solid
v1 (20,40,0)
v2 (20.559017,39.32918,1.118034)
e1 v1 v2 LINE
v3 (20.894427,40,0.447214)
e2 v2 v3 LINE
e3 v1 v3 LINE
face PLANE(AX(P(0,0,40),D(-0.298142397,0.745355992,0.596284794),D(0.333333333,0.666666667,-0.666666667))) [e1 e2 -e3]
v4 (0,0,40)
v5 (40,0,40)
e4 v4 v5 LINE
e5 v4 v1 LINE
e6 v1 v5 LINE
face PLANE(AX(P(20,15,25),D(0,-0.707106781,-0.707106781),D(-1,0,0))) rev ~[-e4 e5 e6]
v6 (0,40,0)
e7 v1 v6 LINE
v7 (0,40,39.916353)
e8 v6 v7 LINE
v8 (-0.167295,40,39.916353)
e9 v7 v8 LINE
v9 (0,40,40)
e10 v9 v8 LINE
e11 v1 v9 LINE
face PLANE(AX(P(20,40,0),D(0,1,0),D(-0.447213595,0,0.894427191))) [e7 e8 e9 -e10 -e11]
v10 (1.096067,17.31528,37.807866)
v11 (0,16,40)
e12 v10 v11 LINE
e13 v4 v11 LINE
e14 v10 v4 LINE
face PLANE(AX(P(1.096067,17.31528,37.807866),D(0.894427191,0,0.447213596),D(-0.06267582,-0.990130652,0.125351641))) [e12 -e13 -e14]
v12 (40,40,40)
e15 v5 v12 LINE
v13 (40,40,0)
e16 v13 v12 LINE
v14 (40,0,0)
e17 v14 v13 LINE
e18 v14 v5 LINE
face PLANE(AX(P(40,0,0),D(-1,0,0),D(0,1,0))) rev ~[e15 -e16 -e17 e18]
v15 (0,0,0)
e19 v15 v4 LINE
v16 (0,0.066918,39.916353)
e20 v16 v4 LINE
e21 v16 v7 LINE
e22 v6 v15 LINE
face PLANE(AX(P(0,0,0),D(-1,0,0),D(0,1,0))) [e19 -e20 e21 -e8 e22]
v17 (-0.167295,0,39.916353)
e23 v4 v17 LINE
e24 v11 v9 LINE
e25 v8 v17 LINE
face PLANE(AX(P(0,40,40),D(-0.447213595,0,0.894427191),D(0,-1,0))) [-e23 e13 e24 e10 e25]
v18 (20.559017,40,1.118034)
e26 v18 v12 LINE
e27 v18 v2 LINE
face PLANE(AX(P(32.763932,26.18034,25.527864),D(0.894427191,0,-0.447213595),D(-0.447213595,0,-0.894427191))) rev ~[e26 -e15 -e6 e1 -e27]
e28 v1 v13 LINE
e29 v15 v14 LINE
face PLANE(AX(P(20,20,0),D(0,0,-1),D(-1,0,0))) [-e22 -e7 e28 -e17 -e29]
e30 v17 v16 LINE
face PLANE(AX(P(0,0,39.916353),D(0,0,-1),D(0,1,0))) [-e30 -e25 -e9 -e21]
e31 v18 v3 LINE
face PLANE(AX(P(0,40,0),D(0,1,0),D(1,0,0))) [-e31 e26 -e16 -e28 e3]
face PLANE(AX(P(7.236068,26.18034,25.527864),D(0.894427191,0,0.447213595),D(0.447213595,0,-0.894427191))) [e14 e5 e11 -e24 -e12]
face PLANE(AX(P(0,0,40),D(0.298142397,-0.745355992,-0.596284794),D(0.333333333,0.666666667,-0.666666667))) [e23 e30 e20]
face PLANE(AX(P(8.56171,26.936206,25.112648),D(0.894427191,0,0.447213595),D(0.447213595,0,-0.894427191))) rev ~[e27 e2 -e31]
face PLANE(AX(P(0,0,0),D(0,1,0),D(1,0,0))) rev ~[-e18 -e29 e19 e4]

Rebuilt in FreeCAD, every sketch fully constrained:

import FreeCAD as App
import Part
import Sketcher
Q = App.Units.Quantity


def add_polygon(sketch, points):
    """Adds a closed chain of lines whose ends are joined by coincident constraints."""
    first, n = sketch.GeometryCount, len(points)
    for a, b in zip(points, points[1:] + points[:1]):
        sketch.addGeometry(Part.LineSegment(App.Vector(*a, 0), App.Vector(*b, 0)), False)
    for i in range(n):
        sketch.addConstraint(Sketcher.Constraint("Coincident", first + i, 2, first + (i + 1) % n, 1))

doc = App.newDocument("Part")
body = doc.addObject("PartDesign::Body", "Body")
body.AllowCompound = True

sketch1 = body.newObject("Sketcher::SketchObject", "Sketch")
sketch1.AttachmentSupport = (doc.getObject("XY_Plane"), [""])
sketch1.MapMode = "FlatFace"
add_polygon(sketch1, [(0, 40), (0, 0), (40, 0), (40, 40)])
sketch1.addConstraint([
    Sketcher.Constraint("Vertical", 0),
    Sketcher.Constraint("Horizontal", 1),
    Sketcher.Constraint("Vertical", 2),
    Sketcher.Constraint("Horizontal", 3),
    Sketcher.Constraint("Coincident", 0, 2, -1, 1),
    Sketcher.Constraint("Equal", 3, 0),
    Sketcher.Constraint("DistanceX", 1, 1, 1, 2, Q("40 mm")),
])
pad1 = body.newObject("PartDesign::Pad", "Pad")
pad1.Profile = sketch1
pad1.Length = 40

sketch2 = body.newObject("Sketcher::SketchObject", "Sketch001")
sketch2.Placement = App.Placement(App.Vector(0, 20, 20), App.Rotation(App.Vector(1, 0, 0), App.Vector(0, 0.707106781, -0.707106781), App.Vector(0, 0.707106781, 0.707106781), "ZXY"))
add_polygon(sketch2, [(0, -28), (40, -28), (20, 28)])
sketch2.addConstraint([
    Sketcher.Constraint("Horizontal", 0),
    Sketcher.Constraint("PointOnObject", 2, 2, -2),
    Sketcher.Constraint("Equal", 1, 2),
    Sketcher.Constraint("DistanceX", 0, 1, 0, 2, Q("40 mm")),
    Sketcher.Constraint("Distance", 1, Q("60 mm")),
    Sketcher.Constraint("DistanceY", 0, 2, -1, 1, Q("28.284271 mm")),
])
pocket1 = body.newObject("PartDesign::Pocket", "Pocket")
pocket1.Profile = sketch2
pocket1.Length = 40
pocket1.Reversed = True

sketch3 = body.newObject("Sketcher::SketchObject", "Sketch002")
sketch3.Placement = App.Placement(App.Vector(16, 0, -8), App.Rotation(App.Vector(0.447213595, 0, 0.894427191), App.Vector(0, 1, 0), App.Vector(-0.894427191, 0, 0.447213595), "ZXY"))
add_polygon(sketch3, [(54, 40), (9, 40), (54, 0)])
sketch3.addConstraint([
    Sketcher.Constraint("Horizontal", 0),
    Sketcher.Constraint("Vertical", 2),
    Sketcher.Constraint("PointOnObject", 1, 2, -1),
    Sketcher.Constraint("DistanceY", 2, 1, 2, 2, Q("40 mm")),
    Sketcher.Constraint("Distance", 1, Q("60 mm")),
    Sketcher.Constraint("DistanceX", -1, 1, 0, 2, Q("8.944272 mm")),
])
pocket2 = body.newObject("PartDesign::Pocket", "Pocket001")
pocket2.Profile = sketch3
pocket2.Length = 40
pocket2.Reversed = True

sketch4 = body.newObject("Sketcher::SketchObject", "Sketch003")
sketch4.Placement = App.Placement(App.Vector(16, 0, 8), App.Rotation(App.Vector(-0.447213595, 0, 0.894427191), App.Vector(0, 1, 0), App.Vector(-0.894427191, 0, -0.447213595), "ZXY"))
add_polygon(sketch4, [(-9, 40), (36, 0), (29, 45)])
sketch4.addConstraint([
    Sketcher.Constraint("PointOnObject", 0, 2, -1),
    Sketcher.Constraint("Perpendicular", 1, 2),
    Sketcher.Constraint("Distance", 0, Q("60 mm")),
    Sketcher.Constraint("DistanceY", -1, 1, 2, 2, Q("40 mm")),
    Sketcher.Constraint("Distance", 1, Q("45.872808 mm")),
    Sketcher.Constraint("DistanceX", 2, 2, -1, 1, Q("8.944272 mm")),
])
pocket3 = body.newObject("PartDesign::Pocket", "Pocket002")
pocket3.Profile = sketch4
pocket3.Length = 1

sketch5 = body.newObject("Sketcher::SketchObject", "Sketch004")
sketch5.Placement = App.Placement(App.Vector(16, 0, 8), App.Rotation(App.Vector(-0.447213595, 0, 0.894427191), App.Vector(0, 1, 0), App.Vector(-0.894427191, 0, -0.447213595), "ZXY"))
add_polygon(sketch5, [(36, 0), (36, 40), (-9, 40)])
sketch5.addConstraint([
    Sketcher.Constraint("Vertical", 0),
    Sketcher.Constraint("Horizontal", 1),
    Sketcher.Constraint("PointOnObject", 2, 2, -1),
    Sketcher.Constraint("DistanceY", 0, 1, 0, 2, Q("40 mm")),
    Sketcher.Constraint("Distance", 2, Q("60 mm")),
    Sketcher.Constraint("DistanceX", 1, 2, -1, 1, Q("8.944272 mm")),
])
pad2 = body.newObject("PartDesign::Pad", "Pad001")
pad2.Profile = sketch5
pad2.Length = 26

sketch6 = body.newObject("Sketcher::SketchObject", "Sketch005")
sketch6.Placement = App.Placement(App.Vector(16, 0, 8), App.Rotation(App.Vector(0.447213595, 0, -0.894427191), App.Vector(0, 1, 0), App.Vector(0.894427191, 0, 0.447213595), "ZXY"))
add_polygon(sketch6, [(3, 34.7), (-35.8, 31.2), (-35.8, 16), (-33.3, 17.3), (-35.8, 0)])
sketch6.addConstraint([
    Sketcher.Constraint("Vertical", 1),
    Sketcher.Constraint("PointOnObject", 3, 2, -1),
    Sketcher.Constraint("Vertical", 1, 2, 3, 2),
    Sketcher.Constraint("DistanceY", -1, 1, 1, 2, Q("16 mm")),
    Sketcher.Constraint("DistanceX", 2, 2, 4, 2, Q("36.305101 mm")),
    Sketcher.Constraint("Distance", 0, Q("38.909949 mm")),
    Sketcher.Constraint("DistanceY", 1, 2, 1, 1, Q("15.206354 mm")),
    Sketcher.Constraint("DistanceY", -1, 1, 2, 2, Q("17.31528 mm")),
    Sketcher.Constraint("DistanceX", 1, 2, 2, 2, Q("2.45088 mm")),
    Sketcher.Constraint("DistanceX", 0, 2, -1, 1, Q("35.777088 mm")),
])
pocket4 = body.newObject("PartDesign::Pocket", "Pocket003")
pocket4.Profile = sketch6
pocket4.Length = 5
pocket4.Reversed = True

sketch7 = body.newObject("Sketcher::SketchObject", "Sketch006")
sketch7.Placement = App.Placement(App.Vector(-15.685739, 4.96458, 31.371479), App.Rotation(App.Vector(-0.896620465, -0.069212396, -0.437357275), App.Vector(0, 0.987708638, -0.156306264), App.Vector(0.442799889, -0.140147395, -0.885599778), "ZXY"))
add_polygon(sketch7, [(-18.7, 11.2), (-21.7, 8.5), (-17.5, -6.3)])
sketch7.addConstraint([
    Sketcher.Constraint("Distance", 0, Q("4.083799 mm")),
    Sketcher.Constraint("DistanceY", -1, 1, 0, 2, Q("8.458308 mm")),
    Sketcher.Constraint("DistanceX", 1, 2, -1, 1, Q("17.494291 mm")),
    Sketcher.Constraint("DistanceY", 1, 2, -1, 1, Q("6.252251 mm")),
    Sketcher.Constraint("Distance", 1, Q("15.313726 mm")),
    Sketcher.Constraint("Distance", 2, Q("17.487874 mm")),
])
pocket5 = body.newObject("PartDesign::Pocket", "Pocket004")
pocket5.Profile = sketch7
pocket5.Length = 5

sketch8 = body.newObject("Sketcher::SketchObject", "Sketch007")
sketch8.Placement = App.Placement(App.Vector(15.970902, -3.856674, 8.595775), App.Rotation(App.Vector(-0.450614766, 0.108815038, 0.88606186), App.Vector(0.234734211, 0.972059592, 0), App.Vector(-0.86130493, 0.207989032, -0.463567018), "ZXY"))
add_polygon(sketch8, [(35.4, 15), (34.9, 15.3), (35.4, 0)])
sketch8.addConstraint([
    Sketcher.Constraint("Vertical", 2),
    Sketcher.Constraint("PointOnObject", 1, 2, -1),
    Sketcher.Constraint("DistanceY", 2, 1, 2, 2, Q("15.010039 mm")),
    Sketcher.Constraint("DistanceX", 0, 2, 1, 2, Q("0.494501 mm")),
    Sketcher.Constraint("DistanceY", 2, 2, 0, 2, Q("0.295701 mm")),
    Sketcher.Constraint("DistanceX", -1, 1, 0, 2, Q("34.947974 mm")),
])
pocket6 = body.newObject("PartDesign::Pocket", "Pocket005")
pocket6.Profile = sketch8
pocket6.Length = 5

sketch9 = body.newObject("Sketcher::SketchObject", "Sketch008")
sketch9.AttachmentSupport = (doc.getObject("XY_Plane"), [""])
sketch9.MapMode = "FlatFace"
add_polygon(sketch9, [(40, 40), (40, 0), (0, 0), (0, 40)])
sketch9.addConstraint([
    Sketcher.Constraint("Vertical", 0),
    Sketcher.Constraint("Horizontal", 1),
    Sketcher.Constraint("Vertical", 2),
    Sketcher.Constraint("Horizontal", 3),
    Sketcher.Constraint("Coincident", 1, 2, -1, 1),
    Sketcher.Constraint("Equal", 3, 0),
    Sketcher.Constraint("DistanceX", 1, 2, 1, 1, Q("40 mm")),
])
pocket7 = body.newObject("PartDesign::Pocket", "Pocket006")
pocket7.Profile = sketch9
pocket7.Length = 50

sketch10 = body.newObject("Sketcher::SketchObject", "Sketch009")
sketch10.AttachmentSupport = (doc.getObject("YZ_Plane"), [""])
sketch10.MapMode = "FlatFace"
add_polygon(sketch10, [(49, -17), (0, -17), (0, 40), (49, 40)])
sketch10.addConstraint([
    Sketcher.Constraint("Horizontal", 0),
    Sketcher.Constraint("Vertical", 1),
    Sketcher.Constraint("Horizontal", 2),
    Sketcher.Constraint("Vertical", 3),
    Sketcher.Constraint("PointOnObject", 0, 2, -2),
    Sketcher.Constraint("DistanceX", 0, 2, 0, 1, Q("49.026259 mm")),
    Sketcher.Constraint("DistanceY", 1, 1, 1, 2, Q("56.739461 mm")),
    Sketcher.Constraint("DistanceY", 0, 2, -1, 1, Q("16.823108 mm")),
])
pocket8 = body.newObject("PartDesign::Pocket", "Pocket007")
pocket8.Profile = sketch10
pocket8.Length = 50

doc.recompute()
